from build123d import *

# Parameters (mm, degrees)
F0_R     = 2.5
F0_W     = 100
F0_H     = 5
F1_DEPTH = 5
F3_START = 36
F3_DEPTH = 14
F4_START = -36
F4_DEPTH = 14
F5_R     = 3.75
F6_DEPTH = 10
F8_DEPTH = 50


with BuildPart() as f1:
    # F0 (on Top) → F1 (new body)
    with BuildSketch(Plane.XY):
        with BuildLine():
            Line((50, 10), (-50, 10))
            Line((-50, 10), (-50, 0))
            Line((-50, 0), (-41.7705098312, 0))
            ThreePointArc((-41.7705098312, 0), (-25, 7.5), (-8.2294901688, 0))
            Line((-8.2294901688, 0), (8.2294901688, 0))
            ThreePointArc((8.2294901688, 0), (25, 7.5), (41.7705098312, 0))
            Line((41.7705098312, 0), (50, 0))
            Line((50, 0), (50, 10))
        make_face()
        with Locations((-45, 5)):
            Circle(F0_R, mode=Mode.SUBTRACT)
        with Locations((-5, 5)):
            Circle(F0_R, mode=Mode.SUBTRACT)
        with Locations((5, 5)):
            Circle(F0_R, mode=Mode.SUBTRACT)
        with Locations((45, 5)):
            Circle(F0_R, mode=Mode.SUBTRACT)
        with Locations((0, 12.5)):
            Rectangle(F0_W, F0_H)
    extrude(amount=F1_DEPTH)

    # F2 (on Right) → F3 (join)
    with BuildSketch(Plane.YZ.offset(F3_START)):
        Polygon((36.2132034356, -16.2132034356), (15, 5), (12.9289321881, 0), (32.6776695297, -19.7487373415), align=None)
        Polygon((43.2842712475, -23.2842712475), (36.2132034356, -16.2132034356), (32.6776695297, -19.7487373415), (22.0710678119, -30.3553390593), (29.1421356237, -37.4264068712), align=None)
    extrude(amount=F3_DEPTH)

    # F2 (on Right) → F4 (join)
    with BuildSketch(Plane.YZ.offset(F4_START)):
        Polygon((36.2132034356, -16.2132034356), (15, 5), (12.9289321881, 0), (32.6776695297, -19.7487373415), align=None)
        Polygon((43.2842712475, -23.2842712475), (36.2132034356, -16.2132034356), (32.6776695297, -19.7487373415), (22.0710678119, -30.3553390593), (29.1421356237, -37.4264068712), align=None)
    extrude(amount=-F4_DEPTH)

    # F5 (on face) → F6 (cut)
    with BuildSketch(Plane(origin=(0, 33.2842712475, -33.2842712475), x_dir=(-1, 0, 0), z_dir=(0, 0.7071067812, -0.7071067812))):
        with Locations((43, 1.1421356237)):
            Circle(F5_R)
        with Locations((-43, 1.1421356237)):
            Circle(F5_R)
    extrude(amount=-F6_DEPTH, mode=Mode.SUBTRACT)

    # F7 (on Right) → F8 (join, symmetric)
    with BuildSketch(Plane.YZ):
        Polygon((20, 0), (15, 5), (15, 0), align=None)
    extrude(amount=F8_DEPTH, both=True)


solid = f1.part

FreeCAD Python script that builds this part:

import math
import FreeCAD as App
import Part
import Sketcher

V = App.Vector
Q = App.Units.Quantity


def add_polygon(sketch, points):
    """Adds a closed chain of lines whose ends are joined by coincident constraints."""
    first, n = sketch.GeometryCount, len(points)
    for a, b in zip(points, points[1:] + points[:1]):
        sketch.addGeometry(Part.LineSegment(App.Vector(*a, 0), App.Vector(*b, 0)), False)
    for i in range(n):
        sketch.addConstraint(Sketcher.Constraint("Coincident", first + i, 2, first + (i + 1) % n, 1))

doc = App.newDocument("Part")
body = doc.addObject("PartDesign::Body", "Body")

sketch1 = doc.addObject("Sketcher::SketchObject", "Sketch")
body.addObject(sketch1)
sketch1.AttachmentSupport = (doc.XY_Plane, [""])
sketch1.MapMode = "FlatFace"
sketch1.addGeometry([
    Part.LineSegment(V(41.8, 0, 0), V(50, 0, 0)),
    Part.LineSegment(V(50, 0, 0), V(50, 15, 0)),
    Part.LineSegment(V(50, 15, 0), V(-50, 15, 0)),
    Part.LineSegment(V(-50, 15, 0), V(-50, 0, 0)),
    Part.LineSegment(V(-50, 0, 0), V(-41.8, 0, 0)),
    Part.ArcOfCircle(Part.Circle(V(-25, -15, 0), V(0, 0, 1), 22.5), math.radians(42), math.radians(138)),
    Part.LineSegment(V(-8.2, 0, 0), V(8.2, 0, 0)),
    Part.ArcOfCircle(Part.Circle(V(25, -15, 0), V(0, 0, 1), 22.5), math.radians(42), math.radians(138)),
    Part.Circle(V(-45, 5, 0), V(0, 0, 1), 2.5),
    Part.Circle(V(-5, 5, 0), V(0, 0, 1), 2.5),
    Part.Circle(V(5, 5, 0), V(0, 0, 1), 2.5),
    Part.Circle(V(45, 5, 0), V(0, 0, 1), 2.5),
], False)
sketch1.addConstraint([
    Sketcher.Constraint("Coincident", 0, 2, 1, 1),
    Sketcher.Constraint("Coincident", 1, 2, 2, 1),
    Sketcher.Constraint("Coincident", 2, 2, 3, 1),
    Sketcher.Constraint("Coincident", 3, 2, 4, 1),
    Sketcher.Constraint("Coincident", 4, 2, 5, 2),
    Sketcher.Constraint("Coincident", 5, 1, 6, 1),
    Sketcher.Constraint("Coincident", 6, 2, 7, 2),
    Sketcher.Constraint("Coincident", 7, 1, 0, 1),
    Sketcher.Constraint("Horizontal", 0),
    Sketcher.Constraint("Vertical", 1),
    Sketcher.Constraint("Horizontal", 2),
    Sketcher.Constraint("Vertical", 3),
    Sketcher.Constraint("Horizontal", 4),
    Sketcher.Constraint("Horizontal", 6),
    Sketcher.Constraint("Equal", 5, 7),
    Sketcher.Constraint("Equal", 8, 9),
    Sketcher.Constraint("Equal", 9, 10),
    Sketcher.Constraint("Equal", 10, 11),
    Sketcher.Constraint("Symmetric", 0, 2, 3, 2, -1, 1),
    Sketcher.Constraint("Symmetric", 5, 1, 6, 2, -1, 1),
    Sketcher.Constraint("Symmetric", 9, 3, 10, 3, -2),
    Sketcher.Constraint("Symmetric", 8, 3, 11, 3, -2),
    Sketcher.Constraint("Symmetric", 4, 2, 7, 1, -2),
    Sketcher.Constraint("Horizontal", 8, 3, 9, 3),
    Sketcher.Constraint("Diameter", 8, 5.0),
    Sketcher.Constraint("Radius", 5, 22.5),
    Sketcher.Constraint("DistanceX", 2, 2, 2, 1, 100.0),
    Sketcher.Constraint("DistanceY", 1, 1, 1, 2, 15.0),
    Sketcher.Constraint("DistanceX", 5, 3, -1, 1, 25.0),
    Sketcher.Constraint("DistanceY", 5, 3, -1, 1, 15.0),
    Sketcher.Constraint("DistanceX", 8, 3, -1, 1, 45.0),
    Sketcher.Constraint("DistanceY", -1, 1, 8, 3, 5.0),
    Sketcher.Constraint("DistanceX", 9, 3, -1, 1, 5.0),
])
pad1 = doc.addObject("PartDesign::Pad", "Pad")
body.addObject(pad1)
pad1.Profile = sketch1
pad1.Length = 5

sketch2 = doc.addObject("Sketcher::SketchObject", "Sketch001")
body.addObject(sketch2)
sketch2.AttachmentSupport = (doc.YZ_Plane, [""])
sketch2.MapMode = "FlatFace"
sketch2.AttachmentOffset = App.Placement(V(0, 0, 36), App.Rotation())
add_polygon(sketch2, [(15, 5), (13, 0), (33, -20), (22, -30), (29, -37), (43, -23)])
sketch2.addConstraint([
    Sketcher.Constraint("PointOnObject", 0, 2, -1),
    Sketcher.Constraint("Perpendicular", 1, 2),
    Sketcher.Constraint("Perpendicular", 2, 3),
    Sketcher.Constraint("Perpendicular", 3, 4),
    Sketcher.Constraint("Perpendicular", 4, 5),
    Sketcher.Constraint("Angle", 1, Q("-45 deg")),
    Sketcher.Constraint("Distance", 2, 15.0),
    Sketcher.Constraint("Distance", 3, 10.0),
    Sketcher.Constraint("Distance", 4, 20.0),
    Sketcher.Constraint("Distance", 5, 40.0),
    Sketcher.Constraint("DistanceX", -1, 1, 5, 2, 15.0),
    Sketcher.Constraint("DistanceY", -1, 1, 5, 2, 5.0),
])
pad2 = doc.addObject("PartDesign::Pad", "Pad001")
body.addObject(pad2)
pad2.Profile = sketch2
pad2.Length = 14

sketch3 = doc.addObject("Sketcher::SketchObject", "Sketch002")
body.addObject(sketch3)
sketch3.AttachmentSupport = (doc.YZ_Plane, [""])
sketch3.MapMode = "FlatFace"
sketch3.AttachmentOffset = App.Placement(V(0, 0, -36), App.Rotation())
add_polygon(sketch3, [(15, 5), (13, 0), (33, -20), (22, -30), (29, -37), (43, -23)])
sketch3.addConstraint([
    Sketcher.Constraint("PointOnObject", 0, 2, -1),
    Sketcher.Constraint("Perpendicular", 1, 2),
    Sketcher.Constraint("Perpendicular", 2, 3),
    Sketcher.Constraint("Perpendicular", 3, 4),
    Sketcher.Constraint("Perpendicular", 4, 5),
    Sketcher.Constraint("Angle", 1, Q("-45 deg")),
    Sketcher.Constraint("Distance", 2, 15.0),
    Sketcher.Constraint("Distance", 3, 10.0),
    Sketcher.Constraint("Distance", 4, 20.0),
    Sketcher.Constraint("Distance", 5, 40.0),
    Sketcher.Constraint("DistanceX", -1, 1, 5, 2, 15.0),
    Sketcher.Constraint("DistanceY", -1, 1, 5, 2, 5.0),
])
pad3 = doc.addObject("PartDesign::Pad", "Pad002")
body.addObject(pad3)
pad3.Profile = sketch3
pad3.Length = 14
pad3.Reversed = True

sketch4 = doc.addObject("Sketcher::SketchObject", "Sketch003")
body.addObject(sketch4)
sketch4.Placement = App.Placement(V(0, 33.284271, -33.284271), App.Rotation(V(-1, 0, 0), V(0, 0.707106781, 0.707106781), V(0, 0.707106781, -0.707106781), "ZXY"))
sketch4.addGeometry([
    Part.Circle(V(43, 1.1, 0), V(0, 0, 1), 3.8),
    Part.Circle(V(-43, 1.1, 0), V(0, 0, 1), 3.8),
], False)
sketch4.addConstraint([
    Sketcher.Constraint("Equal", 0, 1),
    Sketcher.Constraint("Symmetric", 0, 3, 1, 3, -2),
    Sketcher.Constraint("Diameter", 0, 7.5),
    Sketcher.Constraint("DistanceX", -1, 1, 0, 3, 43.0),
    Sketcher.Constraint("DistanceY", -1, 1, 0, 3, 1.142136),
])
pocket1 = doc.addObject("PartDesign::Pocket", "Pocket")
body.addObject(pocket1)
pocket1.Profile = sketch4
pocket1.Length = 10

sketch5 = doc.addObject("Sketcher::SketchObject", "Sketch004")
body.addObject(sketch5)
sketch5.AttachmentSupport = (doc.YZ_Plane, [""])
sketch5.MapMode = "FlatFace"
add_polygon(sketch5, [(20, 0), (15, 5), (15, 0)])
sketch5.addConstraint([
    Sketcher.Constraint("Vertical", 1),
    Sketcher.Constraint("Horizontal", 2),
    Sketcher.Constraint("PointOnObject", 1, 2, -1),
    Sketcher.Constraint("Equal", 2, 1),
    Sketcher.Constraint("DistanceX", 2, 1, 2, 2, 5.0),
    Sketcher.Constraint("DistanceX", -1, 1, 0, 2, 15.0),
])
pad4 = doc.addObject("PartDesign::Pad", "Pad003")
body.addObject(pad4)
pad4.Profile = sketch5
pad4.Length = 100
pad4.Midplane = True

doc.recompute()
